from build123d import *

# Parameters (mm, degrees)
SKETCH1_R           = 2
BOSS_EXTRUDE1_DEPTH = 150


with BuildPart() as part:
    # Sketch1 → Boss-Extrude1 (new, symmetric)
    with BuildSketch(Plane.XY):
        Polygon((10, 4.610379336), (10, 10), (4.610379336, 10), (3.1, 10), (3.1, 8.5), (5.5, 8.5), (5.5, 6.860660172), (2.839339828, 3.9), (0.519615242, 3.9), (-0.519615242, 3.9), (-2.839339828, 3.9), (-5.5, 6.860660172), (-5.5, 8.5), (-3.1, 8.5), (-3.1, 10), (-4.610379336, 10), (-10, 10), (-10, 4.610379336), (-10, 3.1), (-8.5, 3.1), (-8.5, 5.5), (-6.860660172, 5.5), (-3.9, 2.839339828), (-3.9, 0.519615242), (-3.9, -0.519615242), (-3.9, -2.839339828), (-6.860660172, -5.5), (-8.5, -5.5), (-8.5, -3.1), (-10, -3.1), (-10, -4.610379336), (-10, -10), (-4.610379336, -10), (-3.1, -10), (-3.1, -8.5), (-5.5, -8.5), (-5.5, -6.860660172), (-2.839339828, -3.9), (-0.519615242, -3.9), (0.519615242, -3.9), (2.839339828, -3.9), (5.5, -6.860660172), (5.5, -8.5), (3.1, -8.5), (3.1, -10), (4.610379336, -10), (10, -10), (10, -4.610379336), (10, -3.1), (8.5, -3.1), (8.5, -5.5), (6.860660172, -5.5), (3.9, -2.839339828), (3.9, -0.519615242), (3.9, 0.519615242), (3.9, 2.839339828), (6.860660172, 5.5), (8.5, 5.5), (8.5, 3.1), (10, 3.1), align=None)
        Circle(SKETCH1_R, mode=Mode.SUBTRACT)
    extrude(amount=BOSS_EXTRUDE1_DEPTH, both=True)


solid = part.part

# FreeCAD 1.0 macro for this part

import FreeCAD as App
import Part
import Sketcher
Q = App.Units.Quantity

doc = App.newDocument("Part")
body = doc.addObject("PartDesign::Body", "Body")

# Sketch on XY plane
sketch1 = body.newObject("Sketcher::SketchObject", "Sketch")
sketch1.AttachmentSupport = (doc.getObject("XY_Plane"), [""])
sketch1.MapMode = "FlatFace"
sketch1.addGeometry([
    Part.LineSegment(App.Vector(10, 10, 0), App.Vector(3.1, 10, 0)),  # 0
    Part.LineSegment(App.Vector(3.1, 10, 0), App.Vector(3.1, 8.5, 0)),  # 1
    Part.LineSegment(App.Vector(3.1, 8.5, 0), App.Vector(5.5, 8.5, 0)),  # 2
    Part.LineSegment(App.Vector(5.5, 8.5, 0), App.Vector(5.5, 6.9, 0)),  # 3
    Part.LineSegment(App.Vector(5.5, 6.9, 0), App.Vector(2.8, 3.9, 0)),  # 4
    Part.LineSegment(App.Vector(2.8, 3.9, 0), App.Vector(-2.8, 3.9, 0)),  # 5
    Part.LineSegment(App.Vector(-2.8, 3.9, 0), App.Vector(-5.5, 6.9, 0)),  # 6
    Part.LineSegment(App.Vector(-5.5, 6.9, 0), App.Vector(-5.5, 8.5, 0)),  # 7
    Part.LineSegment(App.Vector(-5.5, 8.5, 0), App.Vector(-3.1, 8.5, 0)),  # 8
    Part.LineSegment(App.Vector(-3.1, 8.5, 0), App.Vector(-3.1, 10, 0)),  # 9
    Part.LineSegment(App.Vector(-3.1, 10, 0), App.Vector(-10, 10, 0)),  # 10
    Part.LineSegment(App.Vector(-10, 10, 0), App.Vector(-10, 3.1, 0)),  # 11
    Part.LineSegment(App.Vector(-10, 3.1, 0), App.Vector(-8.5, 3.1, 0)),  # 12
    Part.LineSegment(App.Vector(-8.5, 3.1, 0), App.Vector(-8.5, 5.5, 0)),  # 13
    Part.LineSegment(App.Vector(-8.5, 5.5, 0), App.Vector(-6.9, 5.5, 0)),  # 14
    Part.LineSegment(App.Vector(-6.9, 5.5, 0), App.Vector(-3.9, 2.8, 0)),  # 15
    Part.LineSegment(App.Vector(-3.9, 2.8, 0), App.Vector(-3.9, -2.8, 0)),  # 16
    Part.LineSegment(App.Vector(-3.9, -2.8, 0), App.Vector(-6.9, -5.5, 0)),  # 17
    Part.LineSegment(App.Vector(-6.9, -5.5, 0), App.Vector(-8.5, -5.5, 0)),  # 18
    Part.LineSegment(App.Vector(-8.5, -5.5, 0), App.Vector(-8.5, -3.1, 0)),  # 19
    Part.LineSegment(App.Vector(-8.5, -3.1, 0), App.Vector(-10, -3.1, 0)),  # 20
    Part.LineSegment(App.Vector(-10, -3.1, 0), App.Vector(-10, -10, 0)),  # 21
    Part.LineSegment(App.Vector(-10, -10, 0), App.Vector(-3.1, -10, 0)),  # 22
    Part.LineSegment(App.Vector(-3.1, -10, 0), App.Vector(-3.1, -8.5, 0)),  # 23
    Part.LineSegment(App.Vector(-3.1, -8.5, 0), App.Vector(-5.5, -8.5, 0)),  # 24
    Part.LineSegment(App.Vector(-5.5, -8.5, 0), App.Vector(-5.5, -6.9, 0)),  # 25
    Part.LineSegment(App.Vector(-5.5, -6.9, 0), App.Vector(-2.8, -3.9, 0)),  # 26
    Part.LineSegment(App.Vector(-2.8, -3.9, 0), App.Vector(2.8, -3.9, 0)),  # 27
    Part.LineSegment(App.Vector(2.8, -3.9, 0), App.Vector(5.5, -6.9, 0)),  # 28
    Part.LineSegment(App.Vector(5.5, -6.9, 0), App.Vector(5.5, -8.5, 0)),  # 29
    Part.LineSegment(App.Vector(5.5, -8.5, 0), App.Vector(3.1, -8.5, 0)),  # 30
    Part.LineSegment(App.Vector(3.1, -8.5, 0), App.Vector(3.1, -10, 0)),  # 31
    Part.LineSegment(App.Vector(3.1, -10, 0), App.Vector(10, -10, 0)),  # 32
    Part.LineSegment(App.Vector(10, -10, 0), App.Vector(10, -3.1, 0)),  # 33
    Part.LineSegment(App.Vector(10, -3.1, 0), App.Vector(8.5, -3.1, 0)),  # 34
    Part.LineSegment(App.Vector(8.5, -3.1, 0), App.Vector(8.5, -5.5, 0)),  # 35
    Part.LineSegment(App.Vector(8.5, -5.5, 0), App.Vector(6.9, -5.5, 0)),  # 36
    Part.LineSegment(App.Vector(6.9, -5.5, 0), App.Vector(3.9, -2.8, 0)),  # 37
    Part.LineSegment(App.Vector(3.9, -2.8, 0), App.Vector(3.9, 2.8, 0)),  # 38
    Part.LineSegment(App.Vector(3.9, 2.8, 0), App.Vector(6.9, 5.5, 0)),  # 39
    Part.LineSegment(App.Vector(6.9, 5.5, 0), App.Vector(8.5, 5.5, 0)),  # 40
    Part.LineSegment(App.Vector(8.5, 5.5, 0), App.Vector(8.5, 3.1, 0)),  # 41
    Part.LineSegment(App.Vector(8.5, 3.1, 0), App.Vector(10, 3.1, 0)),  # 42
    Part.LineSegment(App.Vector(10, 3.1, 0), App.Vector(10, 10, 0)),  # 43
    Part.Circle(App.Vector(0, 0, 0), App.Vector(0, 0, 1), 2),  # 44
], False)
sketch1.addConstraint([
    Sketcher.Constraint("Coincident", 0, 2, 1, 1),
    Sketcher.Constraint("Coincident", 1, 2, 2, 1),
    Sketcher.Constraint("Coincident", 2, 2, 3, 1),
    Sketcher.Constraint("Coincident", 3, 2, 4, 1),
    Sketcher.Constraint("Coincident", 4, 2, 5, 1),
    Sketcher.Constraint("Coincident", 5, 2, 6, 1),
    Sketcher.Constraint("Coincident", 6, 2, 7, 1),
    Sketcher.Constraint("Coincident", 7, 2, 8, 1),
    Sketcher.Constraint("Coincident", 8, 2, 9, 1),
    Sketcher.Constraint("Coincident", 9, 2, 10, 1),
    Sketcher.Constraint("Coincident", 10, 2, 11, 1),
    Sketcher.Constraint("Coincident", 11, 2, 12, 1),
    Sketcher.Constraint("Coincident", 12, 2, 13, 1),
    Sketcher.Constraint("Coincident", 13, 2, 14, 1),
    Sketcher.Constraint("Coincident", 14, 2, 15, 1),
    Sketcher.Constraint("Coincident", 15, 2, 16, 1),
    Sketcher.Constraint("Coincident", 16, 2, 17, 1),
    Sketcher.Constraint("Coincident", 17, 2, 18, 1),
    Sketcher.Constraint("Coincident", 18, 2, 19, 1),
    Sketcher.Constraint("Coincident", 19, 2, 20, 1),
    Sketcher.Constraint("Coincident", 20, 2, 21, 1),
    Sketcher.Constraint("Coincident", 21, 2, 22, 1),
    Sketcher.Constraint("Coincident", 22, 2, 23, 1),
    Sketcher.Constraint("Coincident", 23, 2, 24, 1),
    Sketcher.Constraint("Coincident", 24, 2, 25, 1),
    Sketcher.Constraint("Coincident", 25, 2, 26, 1),
    Sketcher.Constraint("Coincident", 26, 2, 27, 1),
    Sketcher.Constraint("Coincident", 27, 2, 28, 1),
    Sketcher.Constraint("Coincident", 28, 2, 29, 1),
    Sketcher.Constraint("Coincident", 29, 2, 30, 1),
    Sketcher.Constraint("Coincident", 30, 2, 31, 1),
    Sketcher.Constraint("Coincident", 31, 2, 32, 1),
    Sketcher.Constraint("Coincident", 32, 2, 33, 1),
    Sketcher.Constraint("Coincident", 33, 2, 34, 1),
    Sketcher.Constraint("Coincident", 34, 2, 35, 1),
    Sketcher.Constraint("Coincident", 35, 2, 36, 1),
    Sketcher.Constraint("Coincident", 36, 2, 37, 1),
    Sketcher.Constraint("Coincident", 37, 2, 38, 1),
    Sketcher.Constraint("Coincident", 38, 2, 39, 1),
    Sketcher.Constraint("Coincident", 39, 2, 40, 1),
    Sketcher.Constraint("Coincident", 40, 2, 41, 1),
    Sketcher.Constraint("Coincident", 41, 2, 42, 1),
    Sketcher.Constraint("Coincident", 42, 2, 43, 1),
    Sketcher.Constraint("Coincident", 43, 2, 0, 1),
    Sketcher.Constraint("Horizontal", 0),
    Sketcher.Constraint("Vertical", 1),
    Sketcher.Constraint("Horizontal", 2),
    Sketcher.Constraint("Vertical", 3),
    Sketcher.Constraint("Horizontal", 5),
    Sketcher.Constraint("Vertical", 7),
    Sketcher.Constraint("Horizontal", 8),
    Sketcher.Constraint("Vertical", 9),
    Sketcher.Constraint("Horizontal", 10),
    Sketcher.Constraint("Vertical", 11),
    Sketcher.Constraint("Horizontal", 12),
    Sketcher.Constraint("Vertical", 13),
    Sketcher.Constraint("Horizontal", 14),
    Sketcher.Constraint("Vertical", 16),
    Sketcher.Constraint("Horizontal", 18),
    Sketcher.Constraint("Vertical", 19),
    Sketcher.Constraint("Horizontal", 20),
    Sketcher.Constraint("Vertical", 21),
    Sketcher.Constraint("Horizontal", 22),
    Sketcher.Constraint("Vertical", 23),
    Sketcher.Constraint("Horizontal", 24),
    Sketcher.Constraint("Vertical", 25),
    Sketcher.Constraint("Horizontal", 27),
    Sketcher.Constraint("Vertical", 29),
    Sketcher.Constraint("Horizontal", 30),
    Sketcher.Constraint("Vertical", 31),
    Sketcher.Constraint("Horizontal", 32),
    Sketcher.Constraint("Vertical", 33),
    Sketcher.Constraint("Horizontal", 34),
    Sketcher.Constraint("Vertical", 35),
    Sketcher.Constraint("Horizontal", 36),
    Sketcher.Constraint("Vertical", 38),
    Sketcher.Constraint("Horizontal", 40),
    Sketcher.Constraint("Vertical", 41),
    Sketcher.Constraint("Horizontal", 42),
    Sketcher.Constraint("Vertical", 43),
    Sketcher.Constraint("Coincident", 44, 3, -1, 1),
    Sketcher.Constraint("Symmetric", 0, 2, 22, 2, -1, 1),
    Sketcher.Constraint("Symmetric", 2, 2, 24, 2, -1, 1),
    Sketcher.Constraint("Symmetric", 4, 2, 26, 2, -1, 1),
    Sketcher.Constraint("Symmetric", 6, 2, 28, 2, -1, 1),
    Sketcher.Constraint("Symmetric", 8, 2, 30, 2, -1, 1),
    Sketcher.Constraint("Symmetric", 10, 2, 32, 2, -1, 1),
    Sketcher.Constraint("Symmetric", 12, 2, 34, 2, -1, 1),
    Sketcher.Constraint("Symmetric", 14, 2, 36, 2, -1, 1),
    Sketcher.Constraint("Symmetric", 15, 2, 37, 2, -1, 1),
    Sketcher.Constraint("Symmetric", 17, 2, 39, 2, -1, 1),
    Sketcher.Constraint("Symmetric", 19, 2, 41, 2, -1, 1),
    Sketcher.Constraint("Symmetric", 3, 2, 6, 2, -2),
    Sketcher.Constraint("Symmetric", 1, 2, 8, 2, -2),
    Sketcher.Constraint("Symmetric", 21, 2, 32, 2, -2),
    Sketcher.Constraint("Symmetric", 19, 2, 34, 2, -2),
    Sketcher.Constraint("Symmetric", 17, 2, 36, 2, -2),
    Sketcher.Constraint("Perpendicular", 4, 15),
    Sketcher.Constraint("Perpendicular", 6, 17),
    Sketcher.Constraint("Perpendicular", 15, 26),
    Sketcher.Constraint("Perpendicular", 17, 28),
    Sketcher.Constraint("Perpendicular", 28, 39),
    Sketcher.Constraint("Horizontal", 16, 2, 37, 2),
    Sketcher.Constraint("Vertical", 33, 2, 42, 2),
    Sketcher.Constraint("Equal", 42, 1),
    Sketcher.Constraint("Equal", 40, 3),
    Sketcher.Constraint("Equal", 32, 11),
    Sketcher.Constraint("Equal", 30, 13),
    Sketcher.Constraint("Equal", 27, 16),
    Sketcher.Constraint("Equal", 6, 15),
    Sketcher.Constraint("Diameter", 44, Q("4 mm")),
    Sketcher.Constraint("DistanceX", 0, 2, 0, 1, Q("6.9 mm")),
    Sketcher.Constraint("DistanceX", 2, 1, 2, 2, Q("2.4 mm")),
    Sketcher.Constraint("DistanceX", 12, 1, 12, 2, Q("1.5 mm")),
    Sketcher.Constraint("DistanceY", -1, 1, 0, 2, Q("10 mm")),
    Sketcher.Constraint("DistanceY", -1, 1, 4, 2, Q("3.9 mm")),
    Sketcher.Constraint("DistanceX", 5, 2, 5, 1, Q("5.67868 mm")),
    Sketcher.Constraint("DistanceX", 14, 1, 14, 2, Q("1.63934 mm")),
])
pad1 = body.newObject("PartDesign::Pad", "Pad")
pad1.Profile = sketch1
pad1.Length = 300
pad1.Midplane = True

doc.recompute()
